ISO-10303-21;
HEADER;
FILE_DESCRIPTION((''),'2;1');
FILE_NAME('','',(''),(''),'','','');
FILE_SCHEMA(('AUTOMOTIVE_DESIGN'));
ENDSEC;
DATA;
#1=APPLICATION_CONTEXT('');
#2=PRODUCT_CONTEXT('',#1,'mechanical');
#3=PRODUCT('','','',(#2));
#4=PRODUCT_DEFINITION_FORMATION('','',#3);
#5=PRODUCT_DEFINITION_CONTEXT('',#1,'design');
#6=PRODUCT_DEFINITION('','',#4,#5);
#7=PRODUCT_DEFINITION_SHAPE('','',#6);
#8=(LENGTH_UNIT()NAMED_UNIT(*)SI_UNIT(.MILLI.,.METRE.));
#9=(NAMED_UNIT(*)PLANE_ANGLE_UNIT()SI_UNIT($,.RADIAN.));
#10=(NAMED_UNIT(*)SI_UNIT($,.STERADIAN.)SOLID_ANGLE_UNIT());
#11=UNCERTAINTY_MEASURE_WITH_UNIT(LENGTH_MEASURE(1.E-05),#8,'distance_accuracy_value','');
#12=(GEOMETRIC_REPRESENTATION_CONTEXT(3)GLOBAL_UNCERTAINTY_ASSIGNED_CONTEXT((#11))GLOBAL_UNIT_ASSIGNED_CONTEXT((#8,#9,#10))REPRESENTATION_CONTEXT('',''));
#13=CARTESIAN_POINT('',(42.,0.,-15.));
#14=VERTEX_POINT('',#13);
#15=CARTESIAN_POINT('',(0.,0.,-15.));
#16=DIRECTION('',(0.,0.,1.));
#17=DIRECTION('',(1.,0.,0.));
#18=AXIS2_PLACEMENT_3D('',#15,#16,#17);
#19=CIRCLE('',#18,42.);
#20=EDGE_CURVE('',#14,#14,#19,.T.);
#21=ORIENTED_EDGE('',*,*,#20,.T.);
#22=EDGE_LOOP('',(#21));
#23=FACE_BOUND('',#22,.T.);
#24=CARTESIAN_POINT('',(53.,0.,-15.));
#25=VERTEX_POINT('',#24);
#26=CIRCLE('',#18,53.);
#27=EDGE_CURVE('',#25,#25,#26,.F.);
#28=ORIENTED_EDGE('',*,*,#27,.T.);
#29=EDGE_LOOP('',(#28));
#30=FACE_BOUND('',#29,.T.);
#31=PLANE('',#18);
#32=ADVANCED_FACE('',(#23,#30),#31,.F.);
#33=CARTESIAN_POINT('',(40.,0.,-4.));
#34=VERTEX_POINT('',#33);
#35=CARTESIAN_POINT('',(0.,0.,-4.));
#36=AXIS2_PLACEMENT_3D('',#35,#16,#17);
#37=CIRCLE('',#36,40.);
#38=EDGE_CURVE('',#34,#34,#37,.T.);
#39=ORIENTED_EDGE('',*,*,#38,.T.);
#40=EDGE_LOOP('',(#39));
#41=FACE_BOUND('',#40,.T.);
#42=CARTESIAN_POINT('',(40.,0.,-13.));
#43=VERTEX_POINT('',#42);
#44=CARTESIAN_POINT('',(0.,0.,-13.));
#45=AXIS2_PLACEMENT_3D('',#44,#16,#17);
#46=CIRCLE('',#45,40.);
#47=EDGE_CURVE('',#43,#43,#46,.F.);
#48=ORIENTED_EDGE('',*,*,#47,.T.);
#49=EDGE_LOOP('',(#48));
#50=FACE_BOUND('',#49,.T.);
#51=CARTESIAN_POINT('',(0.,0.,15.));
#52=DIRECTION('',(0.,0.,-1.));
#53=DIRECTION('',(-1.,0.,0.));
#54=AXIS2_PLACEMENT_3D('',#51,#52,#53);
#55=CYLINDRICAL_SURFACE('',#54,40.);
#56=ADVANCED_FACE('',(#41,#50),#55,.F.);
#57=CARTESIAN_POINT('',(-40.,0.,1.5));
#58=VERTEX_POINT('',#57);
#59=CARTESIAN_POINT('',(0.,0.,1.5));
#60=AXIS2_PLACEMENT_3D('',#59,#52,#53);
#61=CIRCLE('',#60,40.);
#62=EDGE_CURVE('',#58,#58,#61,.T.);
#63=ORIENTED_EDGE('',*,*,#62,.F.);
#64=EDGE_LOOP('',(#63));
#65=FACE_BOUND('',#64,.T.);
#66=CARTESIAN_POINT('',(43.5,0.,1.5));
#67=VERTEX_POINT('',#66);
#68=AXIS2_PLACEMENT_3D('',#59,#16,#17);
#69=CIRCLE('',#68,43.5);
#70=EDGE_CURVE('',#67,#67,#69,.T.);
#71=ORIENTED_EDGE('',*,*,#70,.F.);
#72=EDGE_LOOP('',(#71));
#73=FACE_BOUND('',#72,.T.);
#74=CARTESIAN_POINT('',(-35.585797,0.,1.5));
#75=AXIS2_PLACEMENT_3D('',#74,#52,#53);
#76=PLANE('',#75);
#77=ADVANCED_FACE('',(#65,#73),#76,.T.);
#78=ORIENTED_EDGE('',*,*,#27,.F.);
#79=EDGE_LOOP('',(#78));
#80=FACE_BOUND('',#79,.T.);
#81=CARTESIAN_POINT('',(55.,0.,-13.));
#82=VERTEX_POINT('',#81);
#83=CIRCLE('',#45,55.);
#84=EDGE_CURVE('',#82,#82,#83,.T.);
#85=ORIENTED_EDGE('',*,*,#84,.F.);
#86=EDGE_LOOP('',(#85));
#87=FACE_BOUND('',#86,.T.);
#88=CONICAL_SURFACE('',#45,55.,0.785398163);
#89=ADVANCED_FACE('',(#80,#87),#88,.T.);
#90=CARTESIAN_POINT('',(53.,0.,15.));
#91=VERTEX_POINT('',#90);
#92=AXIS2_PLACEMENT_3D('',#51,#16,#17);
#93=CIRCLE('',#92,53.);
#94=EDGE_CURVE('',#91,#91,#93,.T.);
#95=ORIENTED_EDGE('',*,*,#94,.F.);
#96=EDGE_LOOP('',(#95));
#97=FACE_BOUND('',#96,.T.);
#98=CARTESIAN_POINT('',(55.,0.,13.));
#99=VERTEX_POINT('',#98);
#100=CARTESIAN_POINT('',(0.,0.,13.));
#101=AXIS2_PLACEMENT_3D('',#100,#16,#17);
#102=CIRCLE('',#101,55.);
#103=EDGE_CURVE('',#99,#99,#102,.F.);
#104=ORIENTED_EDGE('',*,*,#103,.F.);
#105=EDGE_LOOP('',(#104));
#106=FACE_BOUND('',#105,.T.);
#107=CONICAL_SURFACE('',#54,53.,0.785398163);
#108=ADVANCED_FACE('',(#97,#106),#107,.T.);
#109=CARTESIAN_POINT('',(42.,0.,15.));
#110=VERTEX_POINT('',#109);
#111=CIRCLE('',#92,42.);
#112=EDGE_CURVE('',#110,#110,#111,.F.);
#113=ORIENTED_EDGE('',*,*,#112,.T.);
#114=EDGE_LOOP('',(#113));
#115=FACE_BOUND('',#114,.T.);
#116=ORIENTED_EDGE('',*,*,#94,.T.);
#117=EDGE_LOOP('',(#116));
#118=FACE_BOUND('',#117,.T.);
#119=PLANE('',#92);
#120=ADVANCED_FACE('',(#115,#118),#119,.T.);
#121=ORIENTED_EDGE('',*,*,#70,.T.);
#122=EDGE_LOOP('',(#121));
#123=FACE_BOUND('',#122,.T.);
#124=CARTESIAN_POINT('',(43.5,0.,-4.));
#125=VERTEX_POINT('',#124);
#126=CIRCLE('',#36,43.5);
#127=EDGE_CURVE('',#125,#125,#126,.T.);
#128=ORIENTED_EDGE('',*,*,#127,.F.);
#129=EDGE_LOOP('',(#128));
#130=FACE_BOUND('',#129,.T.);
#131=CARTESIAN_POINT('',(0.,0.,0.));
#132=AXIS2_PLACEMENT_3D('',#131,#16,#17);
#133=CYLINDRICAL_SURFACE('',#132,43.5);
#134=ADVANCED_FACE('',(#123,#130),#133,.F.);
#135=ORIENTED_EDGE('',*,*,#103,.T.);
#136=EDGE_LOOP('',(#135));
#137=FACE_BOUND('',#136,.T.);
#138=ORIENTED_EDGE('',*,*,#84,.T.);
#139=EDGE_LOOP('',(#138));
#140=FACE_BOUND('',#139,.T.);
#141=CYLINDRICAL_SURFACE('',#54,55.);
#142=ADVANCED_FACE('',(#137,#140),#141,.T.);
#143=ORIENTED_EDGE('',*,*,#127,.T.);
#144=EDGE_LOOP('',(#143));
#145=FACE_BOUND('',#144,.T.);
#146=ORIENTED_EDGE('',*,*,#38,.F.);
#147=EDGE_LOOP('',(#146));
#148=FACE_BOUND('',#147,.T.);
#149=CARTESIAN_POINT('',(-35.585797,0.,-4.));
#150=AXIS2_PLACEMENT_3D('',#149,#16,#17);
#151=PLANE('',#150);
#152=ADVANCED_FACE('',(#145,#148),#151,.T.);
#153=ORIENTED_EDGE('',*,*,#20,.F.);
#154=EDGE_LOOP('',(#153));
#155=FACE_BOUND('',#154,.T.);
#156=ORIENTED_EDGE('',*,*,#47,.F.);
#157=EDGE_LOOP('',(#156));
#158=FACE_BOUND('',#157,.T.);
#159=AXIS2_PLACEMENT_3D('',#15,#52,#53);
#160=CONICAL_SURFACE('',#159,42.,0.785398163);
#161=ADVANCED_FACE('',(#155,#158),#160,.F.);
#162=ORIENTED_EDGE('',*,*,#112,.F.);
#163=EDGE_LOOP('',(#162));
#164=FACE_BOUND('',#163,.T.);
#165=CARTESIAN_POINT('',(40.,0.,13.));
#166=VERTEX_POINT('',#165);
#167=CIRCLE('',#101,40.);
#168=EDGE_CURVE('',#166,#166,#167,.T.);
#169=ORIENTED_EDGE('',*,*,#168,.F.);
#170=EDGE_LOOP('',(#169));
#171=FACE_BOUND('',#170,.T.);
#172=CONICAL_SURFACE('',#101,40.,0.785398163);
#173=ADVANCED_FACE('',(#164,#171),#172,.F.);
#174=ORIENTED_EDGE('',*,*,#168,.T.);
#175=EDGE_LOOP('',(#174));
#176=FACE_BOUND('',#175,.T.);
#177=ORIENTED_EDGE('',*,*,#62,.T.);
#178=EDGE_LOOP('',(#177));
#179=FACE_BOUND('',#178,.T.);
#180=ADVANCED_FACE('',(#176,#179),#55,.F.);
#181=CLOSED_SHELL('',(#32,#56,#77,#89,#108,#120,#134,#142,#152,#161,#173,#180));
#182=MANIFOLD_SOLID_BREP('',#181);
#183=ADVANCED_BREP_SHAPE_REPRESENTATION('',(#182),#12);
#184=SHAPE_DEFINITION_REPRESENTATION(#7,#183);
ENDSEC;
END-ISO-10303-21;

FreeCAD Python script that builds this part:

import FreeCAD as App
import Part
import Sketcher
Q = App.Units.Quantity


def edges_at(feature, points):
    """Names of the edges that pass closest to the given points."""
    edges = feature.Shape.Edges
    near = lambda p: min(range(len(edges)), key=lambda i: edges[i].distToShape(Part.Vertex(*p))[0])
    return sorted({f"Edge{near(p) + 1}" for p in points})

doc = App.newDocument("Part")
body = doc.addObject("PartDesign::Body", "Body")

sketch1 = body.newObject("Sketcher::SketchObject", "Sketch")
sketch1.AttachmentSupport = (doc.getObject("XY_Plane"), [""])
sketch1.MapMode = "FlatFace"
sketch1.addGeometry([
    Part.Circle(App.Vector(0, 0, 0), App.Vector(0, 0, 1), 55),
    Part.Circle(App.Vector(0, 0, 0), App.Vector(0, 0, 1), 40),
], False)
sketch1.addConstraint([
    Sketcher.Constraint("Coincident", 0, 3, -1, 1),
    Sketcher.Constraint("Coincident", 1, 3, -1, 1),
    Sketcher.Constraint("Diameter", 0, Q("110 mm")),
    Sketcher.Constraint("Diameter", 1, Q("80 mm")),
])
pad1 = body.newObject("PartDesign::Pad", "Pad")
pad1.Profile = sketch1
pad1.Length = 30
pad1.Midplane = True
doc.recompute()

chamfer = body.newObject("PartDesign::Chamfer", "Chamfer")
chamfer.Base = (pad1, edges_at(pad1, [
    (-55, 0, -15),
    (-55, 0, 15),
    (-40, 0, -15),
    (-40, 0, 15),
]))
chamfer.Size = 2

sketch2 = body.newObject("Sketcher::SketchObject", "Sketch001")
sketch2.AttachmentSupport = (doc.getObject("XZ_Plane"), [""])
sketch2.MapMode = "FlatFace"
sketch2.addGeometry([
    Part.LineSegment(App.Vector(-43, -4, 0), App.Vector(-43, 2, 0)),
    Part.LineSegment(App.Vector(-43, 2, 0), App.Vector(-36, 2, 0)),
    Part.LineSegment(App.Vector(-36, 2, 0), App.Vector(-36, -4, 0)),
    Part.LineSegment(App.Vector(-36, -4, 0), App.Vector(-43, -4, 0)),
], False)
sketch2.addConstraint([
    Sketcher.Constraint("Coincident", 0, 2, 1, 1),
    Sketcher.Constraint("Coincident", 1, 2, 2, 1),
    Sketcher.Constraint("Coincident", 2, 2, 3, 1),
    Sketcher.Constraint("Coincident", 3, 2, 0, 1),
    Sketcher.Constraint("Vertical", 0),
    Sketcher.Constraint("Horizontal", 1),
    Sketcher.Constraint("Vertical", 2),
    Sketcher.Constraint("Horizontal", 3),
    Sketcher.Constraint("DistanceY", 0, 1, 0, 2, Q("5.5 mm")),
    Sketcher.Constraint("DistanceY", 2, 2, -1, 1, Q("4 mm")),
    Sketcher.Constraint("DistanceX", 0, 2, -1, 1, Q("43.5 mm")),
    Sketcher.Constraint("DistanceX", 1, 1, 1, 2, Q("7.914203 mm")),
])
groove = body.newObject("PartDesign::Groove", "Groove")
groove.Profile = sketch2
groove.ReferenceAxis = (sketch2, ["V_Axis"])
groove.Angle = 360

doc.recompute()
